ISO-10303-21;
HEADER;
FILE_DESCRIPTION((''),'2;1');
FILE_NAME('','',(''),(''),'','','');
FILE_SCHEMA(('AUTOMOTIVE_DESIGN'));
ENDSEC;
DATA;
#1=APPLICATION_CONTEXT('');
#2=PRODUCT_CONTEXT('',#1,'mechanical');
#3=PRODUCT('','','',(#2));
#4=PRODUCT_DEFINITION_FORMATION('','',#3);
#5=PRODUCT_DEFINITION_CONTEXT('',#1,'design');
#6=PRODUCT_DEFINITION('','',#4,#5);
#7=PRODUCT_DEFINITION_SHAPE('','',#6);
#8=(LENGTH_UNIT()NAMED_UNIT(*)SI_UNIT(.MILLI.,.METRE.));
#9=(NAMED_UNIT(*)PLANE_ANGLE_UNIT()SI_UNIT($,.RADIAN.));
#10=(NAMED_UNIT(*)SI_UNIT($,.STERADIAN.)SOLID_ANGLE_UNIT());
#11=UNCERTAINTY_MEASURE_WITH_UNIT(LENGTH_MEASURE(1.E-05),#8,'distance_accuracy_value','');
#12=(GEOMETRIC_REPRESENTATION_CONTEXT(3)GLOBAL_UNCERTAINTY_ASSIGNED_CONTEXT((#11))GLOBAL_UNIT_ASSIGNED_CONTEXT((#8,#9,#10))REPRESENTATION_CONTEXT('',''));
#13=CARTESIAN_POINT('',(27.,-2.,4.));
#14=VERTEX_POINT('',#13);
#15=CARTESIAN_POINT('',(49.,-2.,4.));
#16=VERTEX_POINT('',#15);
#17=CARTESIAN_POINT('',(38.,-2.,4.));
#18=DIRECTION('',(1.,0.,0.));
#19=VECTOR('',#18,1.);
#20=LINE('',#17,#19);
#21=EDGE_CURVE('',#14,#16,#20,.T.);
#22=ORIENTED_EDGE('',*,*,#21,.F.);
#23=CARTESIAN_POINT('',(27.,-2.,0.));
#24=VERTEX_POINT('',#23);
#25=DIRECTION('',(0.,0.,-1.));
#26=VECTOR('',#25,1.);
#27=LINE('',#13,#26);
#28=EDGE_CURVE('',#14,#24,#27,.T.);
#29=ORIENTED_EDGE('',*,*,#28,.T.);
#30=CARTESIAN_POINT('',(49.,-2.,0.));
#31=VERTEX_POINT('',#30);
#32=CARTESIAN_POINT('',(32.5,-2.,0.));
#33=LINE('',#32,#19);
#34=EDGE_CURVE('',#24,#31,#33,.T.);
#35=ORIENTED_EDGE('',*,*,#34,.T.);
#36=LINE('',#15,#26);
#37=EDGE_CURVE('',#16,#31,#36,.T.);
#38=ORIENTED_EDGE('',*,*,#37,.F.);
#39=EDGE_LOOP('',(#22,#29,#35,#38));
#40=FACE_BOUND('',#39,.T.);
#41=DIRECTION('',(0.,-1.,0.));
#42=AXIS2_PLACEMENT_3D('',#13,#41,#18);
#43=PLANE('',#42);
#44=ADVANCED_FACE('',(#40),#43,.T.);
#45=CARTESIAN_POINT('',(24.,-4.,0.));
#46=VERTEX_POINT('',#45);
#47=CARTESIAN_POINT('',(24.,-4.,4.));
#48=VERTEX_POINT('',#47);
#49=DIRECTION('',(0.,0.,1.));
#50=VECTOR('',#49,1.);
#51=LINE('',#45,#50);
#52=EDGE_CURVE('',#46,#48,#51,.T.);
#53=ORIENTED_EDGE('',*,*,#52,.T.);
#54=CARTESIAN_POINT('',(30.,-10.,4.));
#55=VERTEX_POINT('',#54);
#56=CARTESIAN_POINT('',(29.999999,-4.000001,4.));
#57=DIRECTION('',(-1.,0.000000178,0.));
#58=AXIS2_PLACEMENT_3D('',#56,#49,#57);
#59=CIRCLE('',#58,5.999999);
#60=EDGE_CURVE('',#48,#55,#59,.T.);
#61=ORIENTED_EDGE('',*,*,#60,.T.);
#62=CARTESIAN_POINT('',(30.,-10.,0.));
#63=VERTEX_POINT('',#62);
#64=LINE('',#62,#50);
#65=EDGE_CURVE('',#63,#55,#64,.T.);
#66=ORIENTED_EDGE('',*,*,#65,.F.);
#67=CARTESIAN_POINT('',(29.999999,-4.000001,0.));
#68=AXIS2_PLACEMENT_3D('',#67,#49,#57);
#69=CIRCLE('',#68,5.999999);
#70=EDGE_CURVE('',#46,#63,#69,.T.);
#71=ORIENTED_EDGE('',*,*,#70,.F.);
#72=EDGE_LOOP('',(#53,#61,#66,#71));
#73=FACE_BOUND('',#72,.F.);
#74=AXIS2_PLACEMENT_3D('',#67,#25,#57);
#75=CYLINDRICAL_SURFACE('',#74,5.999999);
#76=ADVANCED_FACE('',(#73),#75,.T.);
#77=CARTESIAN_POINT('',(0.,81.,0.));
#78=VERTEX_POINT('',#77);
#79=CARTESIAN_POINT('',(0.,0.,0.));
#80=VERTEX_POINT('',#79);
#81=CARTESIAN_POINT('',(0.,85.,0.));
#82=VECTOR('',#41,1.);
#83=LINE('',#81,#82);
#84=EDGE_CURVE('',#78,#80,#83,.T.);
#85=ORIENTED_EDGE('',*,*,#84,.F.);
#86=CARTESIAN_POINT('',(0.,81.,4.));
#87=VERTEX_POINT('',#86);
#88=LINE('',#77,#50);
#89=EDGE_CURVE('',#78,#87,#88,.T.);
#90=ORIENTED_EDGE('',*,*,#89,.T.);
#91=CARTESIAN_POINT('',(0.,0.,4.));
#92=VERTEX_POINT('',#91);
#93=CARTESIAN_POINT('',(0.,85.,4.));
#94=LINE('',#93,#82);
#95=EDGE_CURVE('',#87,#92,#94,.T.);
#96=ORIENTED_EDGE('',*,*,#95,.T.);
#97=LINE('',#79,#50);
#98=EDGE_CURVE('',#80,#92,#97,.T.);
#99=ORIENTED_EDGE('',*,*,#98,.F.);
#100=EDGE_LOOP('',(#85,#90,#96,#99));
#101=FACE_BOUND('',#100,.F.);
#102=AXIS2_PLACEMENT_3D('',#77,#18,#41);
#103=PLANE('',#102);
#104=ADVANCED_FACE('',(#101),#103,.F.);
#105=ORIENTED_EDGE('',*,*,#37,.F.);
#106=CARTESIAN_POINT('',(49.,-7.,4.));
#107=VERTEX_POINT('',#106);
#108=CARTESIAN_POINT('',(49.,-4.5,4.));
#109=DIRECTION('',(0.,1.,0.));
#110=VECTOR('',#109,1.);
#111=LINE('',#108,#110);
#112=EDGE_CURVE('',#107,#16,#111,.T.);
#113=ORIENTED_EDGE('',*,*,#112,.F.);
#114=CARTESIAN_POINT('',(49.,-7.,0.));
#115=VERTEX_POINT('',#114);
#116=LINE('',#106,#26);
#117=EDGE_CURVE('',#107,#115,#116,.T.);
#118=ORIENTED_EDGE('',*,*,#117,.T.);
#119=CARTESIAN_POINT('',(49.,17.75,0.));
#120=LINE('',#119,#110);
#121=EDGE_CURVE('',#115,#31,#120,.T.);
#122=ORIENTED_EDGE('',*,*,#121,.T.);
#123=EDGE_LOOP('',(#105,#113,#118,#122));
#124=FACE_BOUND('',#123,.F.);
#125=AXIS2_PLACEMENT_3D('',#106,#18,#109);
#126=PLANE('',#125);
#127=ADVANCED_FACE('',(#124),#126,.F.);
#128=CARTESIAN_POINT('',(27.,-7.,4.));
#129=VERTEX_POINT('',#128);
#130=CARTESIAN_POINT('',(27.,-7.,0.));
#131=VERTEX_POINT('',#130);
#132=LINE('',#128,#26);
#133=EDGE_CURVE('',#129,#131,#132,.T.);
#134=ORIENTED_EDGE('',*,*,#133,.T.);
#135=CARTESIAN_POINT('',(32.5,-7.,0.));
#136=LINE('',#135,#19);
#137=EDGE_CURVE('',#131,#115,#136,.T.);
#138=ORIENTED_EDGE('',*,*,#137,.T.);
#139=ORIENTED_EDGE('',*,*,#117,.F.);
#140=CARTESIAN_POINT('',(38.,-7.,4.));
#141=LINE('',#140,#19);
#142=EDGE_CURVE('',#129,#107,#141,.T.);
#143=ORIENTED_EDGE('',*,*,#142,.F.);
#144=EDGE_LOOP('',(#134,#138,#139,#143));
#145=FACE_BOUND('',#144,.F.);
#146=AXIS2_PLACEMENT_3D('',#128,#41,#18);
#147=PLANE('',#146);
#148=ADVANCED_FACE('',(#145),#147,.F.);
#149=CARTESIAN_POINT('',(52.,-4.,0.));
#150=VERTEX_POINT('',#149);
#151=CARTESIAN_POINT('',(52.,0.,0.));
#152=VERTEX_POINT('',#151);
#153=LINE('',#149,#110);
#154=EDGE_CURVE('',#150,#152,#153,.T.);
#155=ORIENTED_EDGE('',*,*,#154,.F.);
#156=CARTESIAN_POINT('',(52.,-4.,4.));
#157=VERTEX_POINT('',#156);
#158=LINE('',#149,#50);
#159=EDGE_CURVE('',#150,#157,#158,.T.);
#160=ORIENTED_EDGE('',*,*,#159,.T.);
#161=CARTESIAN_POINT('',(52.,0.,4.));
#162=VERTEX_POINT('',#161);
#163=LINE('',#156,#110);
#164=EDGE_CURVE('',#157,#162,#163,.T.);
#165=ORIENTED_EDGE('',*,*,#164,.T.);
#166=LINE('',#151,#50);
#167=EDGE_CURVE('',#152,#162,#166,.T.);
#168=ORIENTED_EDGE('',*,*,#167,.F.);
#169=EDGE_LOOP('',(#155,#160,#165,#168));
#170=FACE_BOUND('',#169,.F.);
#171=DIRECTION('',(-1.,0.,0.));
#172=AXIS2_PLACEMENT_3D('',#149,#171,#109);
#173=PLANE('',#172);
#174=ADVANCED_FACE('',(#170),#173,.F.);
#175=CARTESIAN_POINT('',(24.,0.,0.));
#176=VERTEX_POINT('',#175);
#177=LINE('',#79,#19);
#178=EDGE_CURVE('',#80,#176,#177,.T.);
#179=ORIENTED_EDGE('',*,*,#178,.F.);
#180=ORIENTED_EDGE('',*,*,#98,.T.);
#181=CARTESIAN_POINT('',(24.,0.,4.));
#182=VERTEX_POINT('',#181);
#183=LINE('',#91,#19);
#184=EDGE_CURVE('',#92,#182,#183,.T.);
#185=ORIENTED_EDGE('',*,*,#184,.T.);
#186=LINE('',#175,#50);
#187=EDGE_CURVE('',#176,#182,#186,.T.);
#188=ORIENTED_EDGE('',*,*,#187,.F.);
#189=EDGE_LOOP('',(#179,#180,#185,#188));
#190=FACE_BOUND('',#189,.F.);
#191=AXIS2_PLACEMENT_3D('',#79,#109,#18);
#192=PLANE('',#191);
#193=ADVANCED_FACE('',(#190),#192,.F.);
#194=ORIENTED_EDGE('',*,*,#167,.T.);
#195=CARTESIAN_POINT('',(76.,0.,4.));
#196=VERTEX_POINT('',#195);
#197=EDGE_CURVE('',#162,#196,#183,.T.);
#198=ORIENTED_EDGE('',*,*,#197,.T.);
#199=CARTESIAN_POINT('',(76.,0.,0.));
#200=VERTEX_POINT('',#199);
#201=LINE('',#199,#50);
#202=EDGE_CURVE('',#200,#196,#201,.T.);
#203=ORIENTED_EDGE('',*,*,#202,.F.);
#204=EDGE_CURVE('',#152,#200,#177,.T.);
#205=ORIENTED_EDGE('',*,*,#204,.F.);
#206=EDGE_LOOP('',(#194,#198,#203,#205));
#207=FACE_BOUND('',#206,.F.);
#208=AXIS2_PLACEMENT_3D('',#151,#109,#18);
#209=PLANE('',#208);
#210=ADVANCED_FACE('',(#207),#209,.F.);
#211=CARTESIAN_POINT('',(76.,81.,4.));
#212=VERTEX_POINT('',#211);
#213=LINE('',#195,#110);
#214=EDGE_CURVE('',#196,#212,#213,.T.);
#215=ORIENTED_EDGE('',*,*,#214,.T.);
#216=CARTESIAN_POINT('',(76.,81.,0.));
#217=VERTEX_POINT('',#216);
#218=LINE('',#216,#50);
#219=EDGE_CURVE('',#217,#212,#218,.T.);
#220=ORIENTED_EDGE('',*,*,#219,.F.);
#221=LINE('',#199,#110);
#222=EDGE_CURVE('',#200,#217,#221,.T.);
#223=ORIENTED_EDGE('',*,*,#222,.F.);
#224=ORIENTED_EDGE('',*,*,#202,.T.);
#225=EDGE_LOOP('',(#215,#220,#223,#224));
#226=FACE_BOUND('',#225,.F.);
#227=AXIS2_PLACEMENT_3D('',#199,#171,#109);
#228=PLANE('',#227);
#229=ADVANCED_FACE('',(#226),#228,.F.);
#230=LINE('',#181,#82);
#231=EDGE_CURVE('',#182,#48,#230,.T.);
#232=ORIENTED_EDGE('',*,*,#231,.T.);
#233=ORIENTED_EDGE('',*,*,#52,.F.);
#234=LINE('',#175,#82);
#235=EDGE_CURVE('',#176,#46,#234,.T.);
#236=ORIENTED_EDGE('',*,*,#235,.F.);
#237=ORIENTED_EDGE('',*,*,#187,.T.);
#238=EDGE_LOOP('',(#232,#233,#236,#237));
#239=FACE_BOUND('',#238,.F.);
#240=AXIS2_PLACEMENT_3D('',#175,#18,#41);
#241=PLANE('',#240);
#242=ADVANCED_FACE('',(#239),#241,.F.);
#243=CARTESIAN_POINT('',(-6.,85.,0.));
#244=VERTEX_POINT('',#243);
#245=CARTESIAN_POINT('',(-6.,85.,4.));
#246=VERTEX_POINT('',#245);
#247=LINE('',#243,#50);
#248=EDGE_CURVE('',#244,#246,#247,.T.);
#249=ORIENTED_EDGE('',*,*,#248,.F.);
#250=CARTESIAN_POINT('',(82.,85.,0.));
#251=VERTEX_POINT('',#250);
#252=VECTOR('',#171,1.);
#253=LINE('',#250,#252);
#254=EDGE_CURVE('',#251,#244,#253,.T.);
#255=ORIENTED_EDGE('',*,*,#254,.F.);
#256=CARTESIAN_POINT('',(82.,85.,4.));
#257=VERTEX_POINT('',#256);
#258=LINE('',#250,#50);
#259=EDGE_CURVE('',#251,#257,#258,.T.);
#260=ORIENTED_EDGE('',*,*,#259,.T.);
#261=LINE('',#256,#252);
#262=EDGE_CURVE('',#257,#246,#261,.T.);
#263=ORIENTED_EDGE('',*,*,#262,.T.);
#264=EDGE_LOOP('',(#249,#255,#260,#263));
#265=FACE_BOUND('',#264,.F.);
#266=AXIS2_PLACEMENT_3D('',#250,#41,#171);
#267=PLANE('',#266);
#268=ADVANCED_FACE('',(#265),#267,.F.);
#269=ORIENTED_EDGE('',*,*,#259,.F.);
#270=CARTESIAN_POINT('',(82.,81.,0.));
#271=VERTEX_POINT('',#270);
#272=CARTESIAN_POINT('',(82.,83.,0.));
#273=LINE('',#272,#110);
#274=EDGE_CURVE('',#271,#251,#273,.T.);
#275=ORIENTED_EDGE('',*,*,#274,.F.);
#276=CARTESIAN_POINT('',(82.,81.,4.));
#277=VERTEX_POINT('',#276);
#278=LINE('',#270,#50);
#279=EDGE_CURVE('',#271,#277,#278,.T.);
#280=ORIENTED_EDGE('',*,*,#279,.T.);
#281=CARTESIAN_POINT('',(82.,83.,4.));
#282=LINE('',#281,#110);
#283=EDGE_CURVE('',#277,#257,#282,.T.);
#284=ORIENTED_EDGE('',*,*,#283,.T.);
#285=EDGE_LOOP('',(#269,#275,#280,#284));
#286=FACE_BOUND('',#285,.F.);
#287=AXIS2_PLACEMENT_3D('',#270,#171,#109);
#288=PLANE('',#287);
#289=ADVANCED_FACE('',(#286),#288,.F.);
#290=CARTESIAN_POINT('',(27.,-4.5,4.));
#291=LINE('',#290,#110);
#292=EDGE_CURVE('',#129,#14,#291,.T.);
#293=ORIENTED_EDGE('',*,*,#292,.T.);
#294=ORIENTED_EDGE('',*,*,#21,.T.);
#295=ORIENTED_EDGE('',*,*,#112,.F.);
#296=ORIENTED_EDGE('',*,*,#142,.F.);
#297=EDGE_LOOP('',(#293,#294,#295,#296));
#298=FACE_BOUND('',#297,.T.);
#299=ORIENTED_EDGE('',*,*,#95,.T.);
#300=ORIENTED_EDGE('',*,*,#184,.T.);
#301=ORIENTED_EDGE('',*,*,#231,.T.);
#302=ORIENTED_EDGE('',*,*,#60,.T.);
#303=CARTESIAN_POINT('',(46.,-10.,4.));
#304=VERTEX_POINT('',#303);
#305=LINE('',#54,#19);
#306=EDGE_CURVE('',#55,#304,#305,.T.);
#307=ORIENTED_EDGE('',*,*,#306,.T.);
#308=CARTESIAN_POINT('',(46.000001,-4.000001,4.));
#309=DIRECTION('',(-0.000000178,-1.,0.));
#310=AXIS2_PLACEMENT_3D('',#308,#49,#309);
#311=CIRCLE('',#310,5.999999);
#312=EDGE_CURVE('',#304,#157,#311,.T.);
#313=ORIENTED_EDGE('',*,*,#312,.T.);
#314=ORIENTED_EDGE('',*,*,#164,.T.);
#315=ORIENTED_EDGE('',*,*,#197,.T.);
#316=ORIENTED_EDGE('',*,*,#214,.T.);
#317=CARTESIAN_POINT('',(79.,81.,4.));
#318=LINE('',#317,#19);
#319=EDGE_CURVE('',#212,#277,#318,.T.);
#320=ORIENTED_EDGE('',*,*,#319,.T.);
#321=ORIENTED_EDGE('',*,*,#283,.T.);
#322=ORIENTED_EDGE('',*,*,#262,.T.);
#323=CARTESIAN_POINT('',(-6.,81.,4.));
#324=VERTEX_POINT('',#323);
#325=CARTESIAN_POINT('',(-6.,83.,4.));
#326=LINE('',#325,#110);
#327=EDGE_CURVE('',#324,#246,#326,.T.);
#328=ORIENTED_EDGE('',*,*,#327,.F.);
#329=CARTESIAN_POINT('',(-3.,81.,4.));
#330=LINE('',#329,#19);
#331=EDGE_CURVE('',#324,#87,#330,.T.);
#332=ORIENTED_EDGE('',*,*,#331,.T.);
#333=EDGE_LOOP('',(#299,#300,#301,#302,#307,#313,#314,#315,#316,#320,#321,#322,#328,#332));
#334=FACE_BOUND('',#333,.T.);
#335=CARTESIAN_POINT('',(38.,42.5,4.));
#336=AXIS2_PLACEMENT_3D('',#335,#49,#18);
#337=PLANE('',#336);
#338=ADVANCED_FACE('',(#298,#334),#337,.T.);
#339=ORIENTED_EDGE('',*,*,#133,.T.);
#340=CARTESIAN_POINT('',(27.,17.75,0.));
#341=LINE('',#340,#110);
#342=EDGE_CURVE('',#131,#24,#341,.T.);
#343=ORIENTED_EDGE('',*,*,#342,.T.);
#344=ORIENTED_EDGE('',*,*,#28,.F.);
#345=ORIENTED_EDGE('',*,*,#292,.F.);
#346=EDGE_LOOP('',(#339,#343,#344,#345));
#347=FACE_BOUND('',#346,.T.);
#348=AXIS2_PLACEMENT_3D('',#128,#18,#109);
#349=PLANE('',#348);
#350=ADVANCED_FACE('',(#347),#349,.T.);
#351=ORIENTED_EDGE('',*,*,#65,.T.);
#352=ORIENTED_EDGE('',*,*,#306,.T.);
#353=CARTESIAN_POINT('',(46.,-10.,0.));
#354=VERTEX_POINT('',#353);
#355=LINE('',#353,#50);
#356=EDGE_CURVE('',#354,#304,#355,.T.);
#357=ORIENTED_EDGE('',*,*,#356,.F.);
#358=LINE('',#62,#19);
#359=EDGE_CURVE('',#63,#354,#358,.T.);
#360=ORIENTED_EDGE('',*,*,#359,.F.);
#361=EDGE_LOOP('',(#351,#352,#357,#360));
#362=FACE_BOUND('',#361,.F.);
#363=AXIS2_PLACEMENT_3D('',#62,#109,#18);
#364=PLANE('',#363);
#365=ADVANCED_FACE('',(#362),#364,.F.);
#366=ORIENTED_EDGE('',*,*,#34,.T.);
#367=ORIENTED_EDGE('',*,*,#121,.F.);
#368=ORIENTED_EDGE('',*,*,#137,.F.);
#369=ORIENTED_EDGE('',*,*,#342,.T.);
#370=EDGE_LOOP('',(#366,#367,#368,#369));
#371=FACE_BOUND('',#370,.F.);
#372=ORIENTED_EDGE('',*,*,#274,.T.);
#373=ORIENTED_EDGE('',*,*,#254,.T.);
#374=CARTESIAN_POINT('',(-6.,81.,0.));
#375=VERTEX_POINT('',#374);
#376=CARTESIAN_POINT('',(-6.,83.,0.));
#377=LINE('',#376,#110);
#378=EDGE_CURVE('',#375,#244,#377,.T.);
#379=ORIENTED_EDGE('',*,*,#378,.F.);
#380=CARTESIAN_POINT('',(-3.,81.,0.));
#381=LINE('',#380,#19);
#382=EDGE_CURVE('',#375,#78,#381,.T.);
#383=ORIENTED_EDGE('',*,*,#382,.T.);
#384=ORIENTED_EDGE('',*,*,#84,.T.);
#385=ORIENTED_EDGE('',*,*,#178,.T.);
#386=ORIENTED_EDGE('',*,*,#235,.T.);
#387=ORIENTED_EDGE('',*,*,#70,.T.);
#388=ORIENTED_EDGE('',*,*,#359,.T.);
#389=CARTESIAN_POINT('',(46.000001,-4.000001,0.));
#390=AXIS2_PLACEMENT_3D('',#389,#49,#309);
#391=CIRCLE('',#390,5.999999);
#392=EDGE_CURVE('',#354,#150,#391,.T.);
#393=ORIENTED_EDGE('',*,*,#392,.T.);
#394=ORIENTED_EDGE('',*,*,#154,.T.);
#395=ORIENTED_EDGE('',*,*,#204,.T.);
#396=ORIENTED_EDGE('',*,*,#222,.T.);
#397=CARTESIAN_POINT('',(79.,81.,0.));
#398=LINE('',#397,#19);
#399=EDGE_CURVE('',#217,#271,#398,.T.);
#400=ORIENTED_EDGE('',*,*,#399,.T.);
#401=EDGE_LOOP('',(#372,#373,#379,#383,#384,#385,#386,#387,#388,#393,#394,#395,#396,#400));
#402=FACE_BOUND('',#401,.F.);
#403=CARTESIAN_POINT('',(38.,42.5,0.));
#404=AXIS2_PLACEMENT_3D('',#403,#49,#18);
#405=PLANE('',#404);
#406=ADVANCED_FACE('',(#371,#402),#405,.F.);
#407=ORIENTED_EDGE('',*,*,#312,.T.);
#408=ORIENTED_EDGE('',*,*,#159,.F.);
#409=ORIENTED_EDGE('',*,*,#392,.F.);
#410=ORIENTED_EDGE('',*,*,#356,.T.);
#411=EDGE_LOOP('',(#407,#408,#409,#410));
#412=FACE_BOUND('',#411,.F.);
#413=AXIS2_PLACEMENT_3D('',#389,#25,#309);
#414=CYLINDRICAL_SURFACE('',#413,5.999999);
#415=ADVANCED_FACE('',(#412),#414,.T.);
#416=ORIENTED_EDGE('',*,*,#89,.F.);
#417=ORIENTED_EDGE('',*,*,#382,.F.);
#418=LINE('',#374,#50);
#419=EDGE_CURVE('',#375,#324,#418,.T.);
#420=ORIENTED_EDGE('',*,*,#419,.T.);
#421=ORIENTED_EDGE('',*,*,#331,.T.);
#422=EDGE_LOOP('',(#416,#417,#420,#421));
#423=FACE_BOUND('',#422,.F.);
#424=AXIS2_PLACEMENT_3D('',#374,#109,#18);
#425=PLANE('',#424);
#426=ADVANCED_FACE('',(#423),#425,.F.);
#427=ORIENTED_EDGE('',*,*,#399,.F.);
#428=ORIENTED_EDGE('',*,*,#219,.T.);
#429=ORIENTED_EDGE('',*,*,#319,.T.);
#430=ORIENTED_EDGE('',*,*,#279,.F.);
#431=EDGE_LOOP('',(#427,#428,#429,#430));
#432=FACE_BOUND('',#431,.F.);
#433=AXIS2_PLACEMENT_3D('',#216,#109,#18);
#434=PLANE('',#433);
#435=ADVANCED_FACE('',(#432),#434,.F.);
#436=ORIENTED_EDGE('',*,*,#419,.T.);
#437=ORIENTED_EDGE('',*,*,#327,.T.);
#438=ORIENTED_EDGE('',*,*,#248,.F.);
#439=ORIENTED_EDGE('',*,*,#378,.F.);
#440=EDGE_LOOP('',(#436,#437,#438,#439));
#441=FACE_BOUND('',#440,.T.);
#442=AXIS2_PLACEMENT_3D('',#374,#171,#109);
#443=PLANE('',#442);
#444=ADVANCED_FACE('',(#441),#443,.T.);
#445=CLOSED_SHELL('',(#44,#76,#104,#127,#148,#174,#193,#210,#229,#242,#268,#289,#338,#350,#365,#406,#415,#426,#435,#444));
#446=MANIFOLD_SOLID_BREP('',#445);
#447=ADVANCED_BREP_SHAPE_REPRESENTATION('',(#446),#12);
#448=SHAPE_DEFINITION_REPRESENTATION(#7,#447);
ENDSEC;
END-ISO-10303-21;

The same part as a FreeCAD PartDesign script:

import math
import FreeCAD as App
import Part
import Sketcher
from FreeCAD import Vector
Q = App.Units.Quantity

doc = App.newDocument("Part")
params = doc.addObject("Spreadsheet::Sheet", "Params")
for row, (alias, value) in enumerate([
    ("sketch1_radius", "5.999999 mm"),
    ("sketch1_width", "24 mm"),
    ("sketch1_width2", "16 mm"),
    ("sketch1_width3", "6 mm"),
    ("sketch1_height", "4 mm"),
    ("pad1_length", "4 mm"),
    ("sketch2_width", "22 mm"),
    ("sketch2_height", "5 mm"),
], start=1):
    params.set(f"A{row}", alias)
    params.set(f"B{row}", "=" + value)
    params.setAlias(f"B{row}", alias)

body = doc.addObject("PartDesign::Body", "Body")

# Sketch on XY plane
sketch1 = doc.addObject("Sketcher::SketchObject", "Sketch")
body.addObject(sketch1)
sketch1.AttachmentSupport = (doc.XY_Plane, [""])
sketch1.MapMode = "FlatFace"
sketch1.addGeometry([
    Part.LineSegment(Vector(0, 0, 0), Vector(24, 0, 0)),  # 0
    Part.LineSegment(Vector(24, 0, 0), Vector(24, -4, 0)),  # 1
    Part.ArcOfCircle(Part.Circle(Vector(30, -4, 0), Vector(0, 0, 1), 6), math.radians(180), math.radians(270)),  # 2
    Part.LineSegment(Vector(30, -10, 0), Vector(46, -10, 0)),  # 3
    Part.ArcOfCircle(Part.Circle(Vector(46, -4, 0), Vector(0, 0, 1), 6), math.radians(-90), math.radians(0)),  # 4
    Part.LineSegment(Vector(52, -4, 0), Vector(52, 0, 0)),  # 5
    Part.LineSegment(Vector(52, 0, 0), Vector(76, 0, 0)),  # 6
    Part.LineSegment(Vector(76, 0, 0), Vector(76, 81, 0)),  # 7
    Part.LineSegment(Vector(76, 81, 0), Vector(82, 81, 0)),  # 8
    Part.LineSegment(Vector(82, 81, 0), Vector(82, 85, 0)),  # 9
    Part.LineSegment(Vector(82, 85, 0), Vector(-6, 85, 0)),  # 10
    Part.LineSegment(Vector(-6, 85, 0), Vector(-6, 81, 0)),  # 11
    Part.LineSegment(Vector(-6, 81, 0), Vector(0, 81, 0)),  # 12
    Part.LineSegment(Vector(0, 81, 0), Vector(0, 0, 0)),  # 13
], False)
sketch1.addConstraint([
    Sketcher.Constraint("Coincident", 0, 2, 1, 1),
    Sketcher.Constraint("Tangent", 1, 2, 2, 1),
    Sketcher.Constraint("Tangent", 2, 2, 3, 1),
    Sketcher.Constraint("Tangent", 3, 2, 4, 1),
    Sketcher.Constraint("Tangent", 4, 2, 5, 1),
    Sketcher.Constraint("Coincident", 5, 2, 6, 1),
    Sketcher.Constraint("Coincident", 6, 2, 7, 1),
    Sketcher.Constraint("Coincident", 7, 2, 8, 1),
    Sketcher.Constraint("Coincident", 8, 2, 9, 1),
    Sketcher.Constraint("Coincident", 9, 2, 10, 1),
    Sketcher.Constraint("Coincident", 10, 2, 11, 1),
    Sketcher.Constraint("Coincident", 11, 2, 12, 1),
    Sketcher.Constraint("Coincident", 12, 2, 13, 1),
    Sketcher.Constraint("Coincident", 13, 2, 0, 1),
    Sketcher.Constraint("Horizontal", 0),
    Sketcher.Constraint("Vertical", 1),
    Sketcher.Constraint("Horizontal", 3),
    Sketcher.Constraint("Vertical", 5),
    Sketcher.Constraint("Horizontal", 6),
    Sketcher.Constraint("Vertical", 7),
    Sketcher.Constraint("Horizontal", 8),
    Sketcher.Constraint("Vertical", 9),
    Sketcher.Constraint("Horizontal", 10),
    Sketcher.Constraint("Vertical", 11),
    Sketcher.Constraint("Horizontal", 12),
    Sketcher.Constraint("Vertical", 13),
    Sketcher.Constraint("Coincident", 13, 2, -1, 1),
    Sketcher.Constraint("Equal", 2, 4),
    Sketcher.Constraint("PointOnObject", 5, 2, -1),
    Sketcher.Constraint("Horizontal", 8, 2, 11, 2),
    Sketcher.Constraint("Equal", 0, 6),
    Sketcher.Constraint("Equal", 8, 12),
    Sketcher.Constraint("Equal", 5, 9),
    Sketcher.Constraint("Radius", 2, Q("5.999999 mm")),
    Sketcher.Constraint("DistanceX", 0, 1, 0, 2, Q("24 mm")),
    Sketcher.Constraint("DistanceX", 3, 1, 3, 2, Q("16 mm")),
    Sketcher.Constraint("DistanceX", 8, 1, 8, 2, Q("6 mm")),
    Sketcher.Constraint("DistanceY", 1, 2, 1, 1, Q("4 mm")),
    Sketcher.Constraint("DistanceY", 7, 1, 7, 2, Q("81 mm")),
])
sketch1.setExpression("Constraints[33]", "Params.sketch1_radius")
sketch1.setExpression("Constraints[34]", "Params.sketch1_width")
sketch1.setExpression("Constraints[35]", "Params.sketch1_width2")
sketch1.setExpression("Constraints[36]", "Params.sketch1_width3")
sketch1.setExpression("Constraints[37]", "Params.sketch1_height")
pad1 = doc.addObject("PartDesign::Pad", "Pad")
body.addObject(pad1)
pad1.Profile = sketch1
pad1.setExpression("Length", "Params.pad1_length")

# Sketch on XY plane
sketch2 = doc.addObject("Sketcher::SketchObject", "Sketch001")
body.addObject(sketch2)
sketch2.AttachmentSupport = (doc.XY_Plane, [""])
sketch2.MapMode = "FlatFace"
sketch2.AttachmentOffset = App.Placement(Vector(0, 0, 4), App.Rotation())
sketch2.addGeometry([
    Part.LineSegment(Vector(27, -2, 0), Vector(27, -7, 0)),
    Part.LineSegment(Vector(27, -7, 0), Vector(49, -7, 0)),
    Part.LineSegment(Vector(49, -7, 0), Vector(49, -2, 0)),
    Part.LineSegment(Vector(49, -2, 0), Vector(27, -2, 0)),
], False)
sketch2.addConstraint([
    Sketcher.Constraint("Coincident", 0, 2, 1, 1),
    Sketcher.Constraint("Coincident", 1, 2, 2, 1),
    Sketcher.Constraint("Coincident", 2, 2, 3, 1),
    Sketcher.Constraint("Coincident", 3, 2, 0, 1),
    Sketcher.Constraint("Vertical", 0),
    Sketcher.Constraint("Horizontal", 1),
    Sketcher.Constraint("Vertical", 2),
    Sketcher.Constraint("Horizontal", 3),
    Sketcher.Constraint("DistanceX", 1, 1, 1, 2, Q("22 mm")),
    Sketcher.Constraint("DistanceY", 0, 2, 0, 1, Q("5 mm")),
    Sketcher.Constraint("DistanceX", -1, 1, 0, 2, Q("27 mm")),
    Sketcher.Constraint("DistanceY", 0, 2, -1, 1, Q("7 mm")),
])
sketch2.setExpression("Constraints[8]", "Params.sketch2_width")
sketch2.setExpression("Constraints[9]", "Params.sketch2_height")
pocket1 = doc.addObject("PartDesign::Pocket", "Pocket")
body.addObject(pocket1)
pocket1.Profile = sketch2
pocket1.Type = "ThroughAll"

doc.recompute()
